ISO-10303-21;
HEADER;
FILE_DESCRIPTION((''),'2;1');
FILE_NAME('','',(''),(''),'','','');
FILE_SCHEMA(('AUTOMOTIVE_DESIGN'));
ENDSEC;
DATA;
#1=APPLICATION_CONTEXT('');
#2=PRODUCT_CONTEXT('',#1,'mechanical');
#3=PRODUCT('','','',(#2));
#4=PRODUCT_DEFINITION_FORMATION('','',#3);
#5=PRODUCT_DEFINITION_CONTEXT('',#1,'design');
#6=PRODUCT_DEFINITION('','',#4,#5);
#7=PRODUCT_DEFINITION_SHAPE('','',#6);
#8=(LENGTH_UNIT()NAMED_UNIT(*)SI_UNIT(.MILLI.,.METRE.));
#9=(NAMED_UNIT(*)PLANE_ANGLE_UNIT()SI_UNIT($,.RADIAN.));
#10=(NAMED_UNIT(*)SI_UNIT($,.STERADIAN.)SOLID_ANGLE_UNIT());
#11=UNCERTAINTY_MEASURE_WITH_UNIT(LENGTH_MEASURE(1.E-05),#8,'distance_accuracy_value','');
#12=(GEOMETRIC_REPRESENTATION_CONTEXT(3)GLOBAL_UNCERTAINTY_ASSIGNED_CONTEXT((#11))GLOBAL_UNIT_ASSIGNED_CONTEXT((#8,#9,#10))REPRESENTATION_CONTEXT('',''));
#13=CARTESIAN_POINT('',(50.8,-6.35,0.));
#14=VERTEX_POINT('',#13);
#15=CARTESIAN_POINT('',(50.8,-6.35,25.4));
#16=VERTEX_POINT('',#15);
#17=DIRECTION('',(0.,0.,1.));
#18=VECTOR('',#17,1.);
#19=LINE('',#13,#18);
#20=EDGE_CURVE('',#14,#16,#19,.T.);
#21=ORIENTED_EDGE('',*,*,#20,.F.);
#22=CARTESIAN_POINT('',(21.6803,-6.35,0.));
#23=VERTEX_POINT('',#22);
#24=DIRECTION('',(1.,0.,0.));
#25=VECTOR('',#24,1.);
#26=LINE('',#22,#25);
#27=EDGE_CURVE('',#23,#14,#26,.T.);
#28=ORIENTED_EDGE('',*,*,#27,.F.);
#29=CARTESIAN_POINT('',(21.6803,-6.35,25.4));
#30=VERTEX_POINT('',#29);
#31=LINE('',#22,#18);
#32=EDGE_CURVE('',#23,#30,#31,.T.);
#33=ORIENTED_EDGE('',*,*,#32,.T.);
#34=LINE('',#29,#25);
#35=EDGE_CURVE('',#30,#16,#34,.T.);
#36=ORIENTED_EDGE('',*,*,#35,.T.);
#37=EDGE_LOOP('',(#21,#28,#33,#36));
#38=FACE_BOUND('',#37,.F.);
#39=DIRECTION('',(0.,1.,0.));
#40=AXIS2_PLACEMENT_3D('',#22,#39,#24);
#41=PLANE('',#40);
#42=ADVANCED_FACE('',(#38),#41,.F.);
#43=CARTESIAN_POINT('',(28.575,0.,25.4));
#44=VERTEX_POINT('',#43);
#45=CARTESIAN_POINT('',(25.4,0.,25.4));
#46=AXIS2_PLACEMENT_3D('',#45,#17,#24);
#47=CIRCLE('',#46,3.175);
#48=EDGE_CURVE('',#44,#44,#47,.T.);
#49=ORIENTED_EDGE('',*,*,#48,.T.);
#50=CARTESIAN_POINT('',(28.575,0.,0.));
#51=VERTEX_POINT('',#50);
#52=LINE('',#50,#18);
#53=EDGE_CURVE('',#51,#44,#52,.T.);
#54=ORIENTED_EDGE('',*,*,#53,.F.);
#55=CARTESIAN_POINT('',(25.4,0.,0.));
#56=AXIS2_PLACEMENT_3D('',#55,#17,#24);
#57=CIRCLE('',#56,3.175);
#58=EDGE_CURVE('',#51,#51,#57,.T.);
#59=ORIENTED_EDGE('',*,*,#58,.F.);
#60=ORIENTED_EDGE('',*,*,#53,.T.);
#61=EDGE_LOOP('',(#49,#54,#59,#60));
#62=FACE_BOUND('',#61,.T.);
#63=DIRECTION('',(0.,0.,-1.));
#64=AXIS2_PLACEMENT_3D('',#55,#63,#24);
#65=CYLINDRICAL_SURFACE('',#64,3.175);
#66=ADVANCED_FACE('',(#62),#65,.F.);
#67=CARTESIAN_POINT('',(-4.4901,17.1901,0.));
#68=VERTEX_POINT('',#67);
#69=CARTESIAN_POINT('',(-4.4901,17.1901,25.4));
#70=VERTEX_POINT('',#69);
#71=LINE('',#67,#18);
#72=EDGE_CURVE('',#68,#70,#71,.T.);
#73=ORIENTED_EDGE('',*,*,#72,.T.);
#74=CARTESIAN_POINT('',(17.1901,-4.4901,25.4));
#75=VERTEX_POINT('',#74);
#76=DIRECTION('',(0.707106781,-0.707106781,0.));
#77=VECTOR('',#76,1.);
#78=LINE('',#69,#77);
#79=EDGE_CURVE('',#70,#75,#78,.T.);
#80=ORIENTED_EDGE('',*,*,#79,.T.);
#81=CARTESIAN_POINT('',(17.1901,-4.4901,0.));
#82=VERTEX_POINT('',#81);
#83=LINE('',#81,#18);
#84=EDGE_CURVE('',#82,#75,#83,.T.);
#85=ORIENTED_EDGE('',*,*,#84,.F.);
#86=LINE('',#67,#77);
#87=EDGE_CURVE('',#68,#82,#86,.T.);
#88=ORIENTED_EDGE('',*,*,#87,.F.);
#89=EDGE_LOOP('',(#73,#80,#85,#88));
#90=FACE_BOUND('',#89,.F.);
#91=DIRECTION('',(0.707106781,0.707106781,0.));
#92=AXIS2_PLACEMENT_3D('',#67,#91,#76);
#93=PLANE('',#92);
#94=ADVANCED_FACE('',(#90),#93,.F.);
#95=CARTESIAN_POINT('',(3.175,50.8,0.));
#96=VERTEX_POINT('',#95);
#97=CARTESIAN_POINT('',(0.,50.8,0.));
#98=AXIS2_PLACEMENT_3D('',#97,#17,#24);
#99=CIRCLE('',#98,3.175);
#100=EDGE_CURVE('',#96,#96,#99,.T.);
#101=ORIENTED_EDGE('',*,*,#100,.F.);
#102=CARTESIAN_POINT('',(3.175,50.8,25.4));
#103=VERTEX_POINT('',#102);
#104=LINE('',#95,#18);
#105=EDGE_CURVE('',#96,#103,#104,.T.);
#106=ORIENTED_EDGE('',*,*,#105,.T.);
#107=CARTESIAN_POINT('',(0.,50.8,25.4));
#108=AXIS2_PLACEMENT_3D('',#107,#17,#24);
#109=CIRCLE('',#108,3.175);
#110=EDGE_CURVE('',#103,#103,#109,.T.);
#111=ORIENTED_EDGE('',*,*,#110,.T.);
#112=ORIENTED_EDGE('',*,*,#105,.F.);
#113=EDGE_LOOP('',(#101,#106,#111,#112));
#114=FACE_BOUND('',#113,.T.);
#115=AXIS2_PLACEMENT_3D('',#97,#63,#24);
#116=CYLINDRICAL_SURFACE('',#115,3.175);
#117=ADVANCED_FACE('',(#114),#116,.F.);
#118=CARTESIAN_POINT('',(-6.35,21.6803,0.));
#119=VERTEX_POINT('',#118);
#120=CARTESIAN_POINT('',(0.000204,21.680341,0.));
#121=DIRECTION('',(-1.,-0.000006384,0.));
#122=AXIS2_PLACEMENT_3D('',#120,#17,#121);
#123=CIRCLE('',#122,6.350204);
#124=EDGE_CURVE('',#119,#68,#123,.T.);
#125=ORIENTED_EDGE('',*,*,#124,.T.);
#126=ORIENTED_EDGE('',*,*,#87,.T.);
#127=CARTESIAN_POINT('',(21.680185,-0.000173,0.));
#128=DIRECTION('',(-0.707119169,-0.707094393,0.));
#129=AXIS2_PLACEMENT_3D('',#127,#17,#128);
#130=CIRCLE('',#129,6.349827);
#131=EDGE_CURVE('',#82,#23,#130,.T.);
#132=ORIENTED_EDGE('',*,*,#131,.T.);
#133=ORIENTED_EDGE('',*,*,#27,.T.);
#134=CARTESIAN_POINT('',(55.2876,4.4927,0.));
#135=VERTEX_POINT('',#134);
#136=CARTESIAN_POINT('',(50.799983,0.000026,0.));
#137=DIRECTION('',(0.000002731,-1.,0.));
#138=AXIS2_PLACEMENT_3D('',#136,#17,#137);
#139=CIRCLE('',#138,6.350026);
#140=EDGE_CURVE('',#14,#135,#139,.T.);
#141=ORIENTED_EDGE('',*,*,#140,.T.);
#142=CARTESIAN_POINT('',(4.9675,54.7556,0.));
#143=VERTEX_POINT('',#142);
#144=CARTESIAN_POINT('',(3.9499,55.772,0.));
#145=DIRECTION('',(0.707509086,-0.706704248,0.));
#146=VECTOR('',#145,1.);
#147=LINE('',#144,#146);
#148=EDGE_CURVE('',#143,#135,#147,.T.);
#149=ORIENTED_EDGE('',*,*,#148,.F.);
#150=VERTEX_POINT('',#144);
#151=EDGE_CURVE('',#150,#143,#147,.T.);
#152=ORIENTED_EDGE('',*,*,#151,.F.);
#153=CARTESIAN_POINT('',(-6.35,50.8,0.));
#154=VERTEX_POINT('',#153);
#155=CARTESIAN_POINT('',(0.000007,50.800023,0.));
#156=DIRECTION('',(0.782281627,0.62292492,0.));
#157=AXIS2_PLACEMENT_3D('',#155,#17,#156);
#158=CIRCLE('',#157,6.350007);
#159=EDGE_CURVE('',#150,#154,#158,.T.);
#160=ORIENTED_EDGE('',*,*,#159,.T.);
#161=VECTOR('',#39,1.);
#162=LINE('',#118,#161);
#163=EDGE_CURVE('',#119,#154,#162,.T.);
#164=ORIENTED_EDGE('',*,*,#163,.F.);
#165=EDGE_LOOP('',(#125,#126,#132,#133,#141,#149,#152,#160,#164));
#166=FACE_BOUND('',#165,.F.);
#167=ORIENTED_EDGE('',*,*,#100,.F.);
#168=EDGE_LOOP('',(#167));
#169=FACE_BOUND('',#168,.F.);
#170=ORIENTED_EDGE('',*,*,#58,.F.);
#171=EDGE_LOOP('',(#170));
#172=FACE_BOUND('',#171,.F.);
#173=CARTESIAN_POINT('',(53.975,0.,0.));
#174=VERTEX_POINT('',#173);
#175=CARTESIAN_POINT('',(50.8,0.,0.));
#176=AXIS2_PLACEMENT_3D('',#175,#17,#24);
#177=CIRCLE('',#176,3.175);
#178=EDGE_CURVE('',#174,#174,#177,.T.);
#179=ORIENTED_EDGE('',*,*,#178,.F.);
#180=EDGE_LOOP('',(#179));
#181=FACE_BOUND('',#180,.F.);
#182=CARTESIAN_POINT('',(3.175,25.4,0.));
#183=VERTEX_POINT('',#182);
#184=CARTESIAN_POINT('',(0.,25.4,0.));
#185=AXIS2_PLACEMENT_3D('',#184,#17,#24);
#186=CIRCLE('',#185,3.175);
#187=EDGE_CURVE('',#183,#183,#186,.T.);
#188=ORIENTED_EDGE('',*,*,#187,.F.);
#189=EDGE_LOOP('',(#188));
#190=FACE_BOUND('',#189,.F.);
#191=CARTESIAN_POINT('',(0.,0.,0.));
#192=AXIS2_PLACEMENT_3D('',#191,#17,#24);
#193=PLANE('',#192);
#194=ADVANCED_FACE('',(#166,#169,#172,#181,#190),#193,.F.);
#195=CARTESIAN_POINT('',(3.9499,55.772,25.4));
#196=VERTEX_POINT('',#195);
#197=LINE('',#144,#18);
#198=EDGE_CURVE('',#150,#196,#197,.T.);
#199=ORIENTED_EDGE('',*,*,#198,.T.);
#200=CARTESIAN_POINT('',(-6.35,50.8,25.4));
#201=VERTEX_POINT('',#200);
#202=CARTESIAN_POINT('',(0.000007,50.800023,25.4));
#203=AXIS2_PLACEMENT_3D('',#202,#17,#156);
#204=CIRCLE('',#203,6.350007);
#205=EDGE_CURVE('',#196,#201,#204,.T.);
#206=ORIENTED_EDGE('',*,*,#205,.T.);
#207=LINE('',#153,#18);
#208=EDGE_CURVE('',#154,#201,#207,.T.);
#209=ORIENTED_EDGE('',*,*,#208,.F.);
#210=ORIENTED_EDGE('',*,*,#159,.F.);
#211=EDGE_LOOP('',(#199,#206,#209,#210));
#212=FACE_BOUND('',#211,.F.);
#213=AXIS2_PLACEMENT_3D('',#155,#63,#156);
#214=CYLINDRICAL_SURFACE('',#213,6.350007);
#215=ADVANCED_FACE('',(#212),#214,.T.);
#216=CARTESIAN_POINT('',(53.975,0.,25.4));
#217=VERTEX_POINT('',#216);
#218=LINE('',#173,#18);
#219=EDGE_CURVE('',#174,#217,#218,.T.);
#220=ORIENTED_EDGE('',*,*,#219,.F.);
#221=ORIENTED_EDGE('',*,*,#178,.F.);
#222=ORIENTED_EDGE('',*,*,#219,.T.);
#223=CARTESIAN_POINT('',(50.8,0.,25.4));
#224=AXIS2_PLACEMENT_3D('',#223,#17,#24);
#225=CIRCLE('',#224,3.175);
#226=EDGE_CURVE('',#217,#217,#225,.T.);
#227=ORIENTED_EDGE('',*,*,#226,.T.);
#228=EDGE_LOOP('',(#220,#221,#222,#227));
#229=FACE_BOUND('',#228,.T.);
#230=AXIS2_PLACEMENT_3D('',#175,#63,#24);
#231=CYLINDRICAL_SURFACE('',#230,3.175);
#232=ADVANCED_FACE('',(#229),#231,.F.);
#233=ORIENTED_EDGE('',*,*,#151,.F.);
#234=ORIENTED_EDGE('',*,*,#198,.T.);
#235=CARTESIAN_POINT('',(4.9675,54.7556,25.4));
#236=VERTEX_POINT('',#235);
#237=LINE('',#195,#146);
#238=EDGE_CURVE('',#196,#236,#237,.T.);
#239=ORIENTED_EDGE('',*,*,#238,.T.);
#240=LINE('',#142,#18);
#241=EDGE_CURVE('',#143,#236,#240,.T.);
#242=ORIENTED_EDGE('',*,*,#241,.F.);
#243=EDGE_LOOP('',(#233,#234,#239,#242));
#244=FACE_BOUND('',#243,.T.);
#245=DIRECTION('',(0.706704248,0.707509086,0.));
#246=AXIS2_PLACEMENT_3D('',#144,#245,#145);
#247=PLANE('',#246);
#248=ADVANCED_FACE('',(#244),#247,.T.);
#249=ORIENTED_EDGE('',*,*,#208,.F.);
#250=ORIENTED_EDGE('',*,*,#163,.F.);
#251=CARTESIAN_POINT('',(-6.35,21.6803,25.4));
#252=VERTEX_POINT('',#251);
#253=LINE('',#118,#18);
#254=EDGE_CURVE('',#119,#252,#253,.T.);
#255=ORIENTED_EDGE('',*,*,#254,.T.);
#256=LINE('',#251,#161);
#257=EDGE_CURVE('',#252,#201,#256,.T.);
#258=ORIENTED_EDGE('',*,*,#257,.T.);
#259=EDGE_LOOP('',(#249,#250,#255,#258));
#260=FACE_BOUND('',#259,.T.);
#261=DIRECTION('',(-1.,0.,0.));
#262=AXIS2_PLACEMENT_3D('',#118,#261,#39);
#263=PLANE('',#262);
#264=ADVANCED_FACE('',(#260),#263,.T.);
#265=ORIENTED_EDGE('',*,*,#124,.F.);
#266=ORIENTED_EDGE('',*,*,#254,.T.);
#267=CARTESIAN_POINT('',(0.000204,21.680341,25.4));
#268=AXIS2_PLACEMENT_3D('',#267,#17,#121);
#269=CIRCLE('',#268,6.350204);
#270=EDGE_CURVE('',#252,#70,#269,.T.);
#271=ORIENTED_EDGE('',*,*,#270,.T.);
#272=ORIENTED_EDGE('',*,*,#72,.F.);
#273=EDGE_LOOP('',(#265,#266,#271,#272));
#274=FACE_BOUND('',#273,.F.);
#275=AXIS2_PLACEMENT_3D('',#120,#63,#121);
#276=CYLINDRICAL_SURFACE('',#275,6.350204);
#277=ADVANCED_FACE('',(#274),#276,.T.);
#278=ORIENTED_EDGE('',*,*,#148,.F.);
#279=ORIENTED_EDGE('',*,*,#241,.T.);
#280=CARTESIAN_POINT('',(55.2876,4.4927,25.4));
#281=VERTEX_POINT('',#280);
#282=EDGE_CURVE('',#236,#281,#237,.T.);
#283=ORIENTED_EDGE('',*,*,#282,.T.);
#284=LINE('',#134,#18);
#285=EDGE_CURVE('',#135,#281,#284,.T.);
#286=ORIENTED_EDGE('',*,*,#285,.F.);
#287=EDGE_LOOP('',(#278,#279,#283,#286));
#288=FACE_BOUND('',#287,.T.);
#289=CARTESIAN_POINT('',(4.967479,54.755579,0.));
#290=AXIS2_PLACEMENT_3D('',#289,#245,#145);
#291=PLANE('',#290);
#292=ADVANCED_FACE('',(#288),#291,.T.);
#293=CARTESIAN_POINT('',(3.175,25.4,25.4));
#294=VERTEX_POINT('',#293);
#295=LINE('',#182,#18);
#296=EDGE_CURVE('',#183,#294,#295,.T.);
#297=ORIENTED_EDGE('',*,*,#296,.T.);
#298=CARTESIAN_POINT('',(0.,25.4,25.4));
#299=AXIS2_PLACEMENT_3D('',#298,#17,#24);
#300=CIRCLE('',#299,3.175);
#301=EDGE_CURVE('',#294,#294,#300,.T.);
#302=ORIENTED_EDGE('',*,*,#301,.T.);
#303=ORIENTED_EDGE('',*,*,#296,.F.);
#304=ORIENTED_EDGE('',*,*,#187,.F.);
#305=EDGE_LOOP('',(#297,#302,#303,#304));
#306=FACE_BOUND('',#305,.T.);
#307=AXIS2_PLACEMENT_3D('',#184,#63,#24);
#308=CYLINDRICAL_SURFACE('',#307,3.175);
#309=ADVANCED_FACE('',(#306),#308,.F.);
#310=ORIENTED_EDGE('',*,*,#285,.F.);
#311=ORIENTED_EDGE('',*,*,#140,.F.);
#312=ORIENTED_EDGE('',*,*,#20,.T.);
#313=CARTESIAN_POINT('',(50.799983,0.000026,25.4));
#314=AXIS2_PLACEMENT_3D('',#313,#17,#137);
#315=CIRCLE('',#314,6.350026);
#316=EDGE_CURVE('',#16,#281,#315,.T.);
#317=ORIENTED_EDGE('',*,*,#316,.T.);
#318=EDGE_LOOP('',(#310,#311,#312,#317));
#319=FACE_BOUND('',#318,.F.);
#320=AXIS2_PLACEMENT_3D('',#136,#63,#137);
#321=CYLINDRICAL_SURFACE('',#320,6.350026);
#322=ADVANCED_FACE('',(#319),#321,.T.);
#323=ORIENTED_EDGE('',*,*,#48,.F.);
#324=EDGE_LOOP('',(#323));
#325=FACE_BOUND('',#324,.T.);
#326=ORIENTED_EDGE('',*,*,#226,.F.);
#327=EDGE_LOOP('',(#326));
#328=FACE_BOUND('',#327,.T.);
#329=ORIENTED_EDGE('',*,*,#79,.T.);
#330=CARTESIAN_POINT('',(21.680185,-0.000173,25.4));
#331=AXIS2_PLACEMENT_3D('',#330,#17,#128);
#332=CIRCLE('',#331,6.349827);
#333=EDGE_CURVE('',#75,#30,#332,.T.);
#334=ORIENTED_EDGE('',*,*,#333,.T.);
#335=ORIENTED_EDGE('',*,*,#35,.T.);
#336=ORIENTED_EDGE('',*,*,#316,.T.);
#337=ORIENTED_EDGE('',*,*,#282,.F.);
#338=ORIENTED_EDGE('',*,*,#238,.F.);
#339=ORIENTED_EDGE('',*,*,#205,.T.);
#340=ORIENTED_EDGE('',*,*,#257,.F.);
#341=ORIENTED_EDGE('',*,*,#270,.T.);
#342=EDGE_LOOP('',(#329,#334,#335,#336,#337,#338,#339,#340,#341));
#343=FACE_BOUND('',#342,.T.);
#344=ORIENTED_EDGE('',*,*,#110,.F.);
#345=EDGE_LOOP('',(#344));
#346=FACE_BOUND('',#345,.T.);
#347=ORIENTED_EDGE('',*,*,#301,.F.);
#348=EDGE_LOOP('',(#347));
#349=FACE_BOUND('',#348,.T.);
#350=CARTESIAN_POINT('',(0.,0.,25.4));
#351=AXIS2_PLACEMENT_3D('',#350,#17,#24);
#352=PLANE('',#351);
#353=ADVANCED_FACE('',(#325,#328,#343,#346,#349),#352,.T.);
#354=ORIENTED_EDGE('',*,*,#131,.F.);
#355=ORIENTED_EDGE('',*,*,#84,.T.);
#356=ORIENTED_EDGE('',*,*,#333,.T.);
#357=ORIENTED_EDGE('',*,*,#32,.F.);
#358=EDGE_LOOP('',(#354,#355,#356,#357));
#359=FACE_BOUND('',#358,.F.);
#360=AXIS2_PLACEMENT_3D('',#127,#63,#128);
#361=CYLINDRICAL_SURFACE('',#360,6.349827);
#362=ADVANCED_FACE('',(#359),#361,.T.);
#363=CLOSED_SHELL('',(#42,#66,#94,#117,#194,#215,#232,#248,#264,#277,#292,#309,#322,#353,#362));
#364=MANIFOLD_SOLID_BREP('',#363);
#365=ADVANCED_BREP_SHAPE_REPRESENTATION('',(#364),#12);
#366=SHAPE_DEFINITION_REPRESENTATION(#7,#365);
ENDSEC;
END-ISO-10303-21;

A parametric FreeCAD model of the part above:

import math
import FreeCAD as App
import Part
import Sketcher
Q = App.Units.Quantity

doc = App.newDocument("Part")
body = doc.addObject("PartDesign::Body", "Body")

# Sketch on XY plane
sketch1 = body.newObject("Sketcher::SketchObject", "Sketch")
sketch1.AttachmentSupport = (doc.getObject("XY_Plane"), [""])
sketch1.MapMode = "FlatFace"
sketch1.addGeometry([
    Part.ArcOfCircle(Part.Circle(App.Vector(21.7, 0, 0), App.Vector(0, 0, 1), 6.4), math.radians(-135), math.radians(-90)),  # 0
    Part.LineSegment(App.Vector(21.7, -6.3, 0), App.Vector(50.8, -6.3, 0)),  # 1
    Part.ArcOfCircle(Part.Circle(App.Vector(50.8, 0, 0), App.Vector(0, 0, 1), 6.3), math.radians(-90), math.radians(45)),  # 2
    Part.LineSegment(App.Vector(55.3, 4.5, 0), App.Vector(3.9, 55.8, 0)),  # 3
    Part.ArcOfCircle(Part.Circle(App.Vector(0, 50.8, 0), App.Vector(0, 0, 1), 6.4), math.radians(52), math.radians(180)),  # 4
    Part.LineSegment(App.Vector(-6.3, 50.8, 0), App.Vector(-6.3, 21.7, 0)),  # 5
    Part.ArcOfCircle(Part.Circle(App.Vector(0, 21.7, 0), App.Vector(0, 0, 1), 6.3), math.radians(180), math.radians(225)),  # 6
    Part.LineSegment(App.Vector(-4.5, 17.2, 0), App.Vector(17.2, -4.5, 0)),  # 7
    Part.Circle(App.Vector(25.4, 0, 0), App.Vector(0, 0, 1), 3.2),  # 8
    Part.Circle(App.Vector(0, 25.4, 0), App.Vector(0, 0, 1), 3.2),  # 9
    Part.Circle(App.Vector(50.8, 0, 0), App.Vector(0, 0, 1), 3.2),  # 10
    Part.Circle(App.Vector(0, 50.8, 0), App.Vector(0, 0, 1), 3.2),  # 11
], False)
sketch1.addConstraint([
    Sketcher.Constraint("Tangent", 0, 2, 1, 1),
    Sketcher.Constraint("Tangent", 1, 2, 2, 1),
    Sketcher.Constraint("Tangent", 2, 2, 3, 1),
    Sketcher.Constraint("Coincident", 3, 2, 4, 1),
    Sketcher.Constraint("Tangent", 4, 2, 5, 1),
    Sketcher.Constraint("Tangent", 5, 2, 6, 1),
    Sketcher.Constraint("Tangent", 6, 2, 7, 1),
    Sketcher.Constraint("Tangent", 7, 2, 0, 1),
    Sketcher.Constraint("Horizontal", 1),
    Sketcher.Constraint("Vertical", 5),
    Sketcher.Constraint("Coincident", 10, 3, 2, 3),
    Sketcher.Constraint("Coincident", 11, 3, 4, 3),
    Sketcher.Constraint("Equal", 0, 2),
    Sketcher.Constraint("Equal", 2, 4),
    Sketcher.Constraint("Equal", 4, 6),
    Sketcher.Constraint("Equal", 8, 9),
    Sketcher.Constraint("Equal", 9, 10),
    Sketcher.Constraint("Equal", 10, 11),
    Sketcher.Constraint("PointOnObject", 0, 3, -1),
    Sketcher.Constraint("PointOnObject", 4, 3, -2),
    Sketcher.Constraint("PointOnObject", 8, 3, -1),
    Sketcher.Constraint("PointOnObject", 9, 3, -2),
    Sketcher.Constraint("Equal", 1, 5),
    Sketcher.Constraint("Diameter", 8, Q("0.25 in")),
    Sketcher.Constraint("Radius", 0, Q("0.25 in")),
    Sketcher.Constraint("DistanceX", -1, 1, 2, 3, Q("2 in")),
    Sketcher.Constraint("DistanceY", -1, 1, 4, 3, Q("2 in")),
    Sketcher.Constraint("DistanceX", -1, 1, 8, 3, Q("1 in")),
    Sketcher.Constraint("DistanceY", -1, 1, 9, 3, Q("1 in")),
    Sketcher.Constraint("Distance", 7, Q("1.2071 in")),
    Sketcher.Constraint("DistanceX", -1, 1, 3, 2, Q("0.1555 in")),
])
pad1 = body.newObject("PartDesign::Pad", "Pad")
pad1.Profile = sketch1
pad1.Length = Q("1 in")

doc.recompute()
